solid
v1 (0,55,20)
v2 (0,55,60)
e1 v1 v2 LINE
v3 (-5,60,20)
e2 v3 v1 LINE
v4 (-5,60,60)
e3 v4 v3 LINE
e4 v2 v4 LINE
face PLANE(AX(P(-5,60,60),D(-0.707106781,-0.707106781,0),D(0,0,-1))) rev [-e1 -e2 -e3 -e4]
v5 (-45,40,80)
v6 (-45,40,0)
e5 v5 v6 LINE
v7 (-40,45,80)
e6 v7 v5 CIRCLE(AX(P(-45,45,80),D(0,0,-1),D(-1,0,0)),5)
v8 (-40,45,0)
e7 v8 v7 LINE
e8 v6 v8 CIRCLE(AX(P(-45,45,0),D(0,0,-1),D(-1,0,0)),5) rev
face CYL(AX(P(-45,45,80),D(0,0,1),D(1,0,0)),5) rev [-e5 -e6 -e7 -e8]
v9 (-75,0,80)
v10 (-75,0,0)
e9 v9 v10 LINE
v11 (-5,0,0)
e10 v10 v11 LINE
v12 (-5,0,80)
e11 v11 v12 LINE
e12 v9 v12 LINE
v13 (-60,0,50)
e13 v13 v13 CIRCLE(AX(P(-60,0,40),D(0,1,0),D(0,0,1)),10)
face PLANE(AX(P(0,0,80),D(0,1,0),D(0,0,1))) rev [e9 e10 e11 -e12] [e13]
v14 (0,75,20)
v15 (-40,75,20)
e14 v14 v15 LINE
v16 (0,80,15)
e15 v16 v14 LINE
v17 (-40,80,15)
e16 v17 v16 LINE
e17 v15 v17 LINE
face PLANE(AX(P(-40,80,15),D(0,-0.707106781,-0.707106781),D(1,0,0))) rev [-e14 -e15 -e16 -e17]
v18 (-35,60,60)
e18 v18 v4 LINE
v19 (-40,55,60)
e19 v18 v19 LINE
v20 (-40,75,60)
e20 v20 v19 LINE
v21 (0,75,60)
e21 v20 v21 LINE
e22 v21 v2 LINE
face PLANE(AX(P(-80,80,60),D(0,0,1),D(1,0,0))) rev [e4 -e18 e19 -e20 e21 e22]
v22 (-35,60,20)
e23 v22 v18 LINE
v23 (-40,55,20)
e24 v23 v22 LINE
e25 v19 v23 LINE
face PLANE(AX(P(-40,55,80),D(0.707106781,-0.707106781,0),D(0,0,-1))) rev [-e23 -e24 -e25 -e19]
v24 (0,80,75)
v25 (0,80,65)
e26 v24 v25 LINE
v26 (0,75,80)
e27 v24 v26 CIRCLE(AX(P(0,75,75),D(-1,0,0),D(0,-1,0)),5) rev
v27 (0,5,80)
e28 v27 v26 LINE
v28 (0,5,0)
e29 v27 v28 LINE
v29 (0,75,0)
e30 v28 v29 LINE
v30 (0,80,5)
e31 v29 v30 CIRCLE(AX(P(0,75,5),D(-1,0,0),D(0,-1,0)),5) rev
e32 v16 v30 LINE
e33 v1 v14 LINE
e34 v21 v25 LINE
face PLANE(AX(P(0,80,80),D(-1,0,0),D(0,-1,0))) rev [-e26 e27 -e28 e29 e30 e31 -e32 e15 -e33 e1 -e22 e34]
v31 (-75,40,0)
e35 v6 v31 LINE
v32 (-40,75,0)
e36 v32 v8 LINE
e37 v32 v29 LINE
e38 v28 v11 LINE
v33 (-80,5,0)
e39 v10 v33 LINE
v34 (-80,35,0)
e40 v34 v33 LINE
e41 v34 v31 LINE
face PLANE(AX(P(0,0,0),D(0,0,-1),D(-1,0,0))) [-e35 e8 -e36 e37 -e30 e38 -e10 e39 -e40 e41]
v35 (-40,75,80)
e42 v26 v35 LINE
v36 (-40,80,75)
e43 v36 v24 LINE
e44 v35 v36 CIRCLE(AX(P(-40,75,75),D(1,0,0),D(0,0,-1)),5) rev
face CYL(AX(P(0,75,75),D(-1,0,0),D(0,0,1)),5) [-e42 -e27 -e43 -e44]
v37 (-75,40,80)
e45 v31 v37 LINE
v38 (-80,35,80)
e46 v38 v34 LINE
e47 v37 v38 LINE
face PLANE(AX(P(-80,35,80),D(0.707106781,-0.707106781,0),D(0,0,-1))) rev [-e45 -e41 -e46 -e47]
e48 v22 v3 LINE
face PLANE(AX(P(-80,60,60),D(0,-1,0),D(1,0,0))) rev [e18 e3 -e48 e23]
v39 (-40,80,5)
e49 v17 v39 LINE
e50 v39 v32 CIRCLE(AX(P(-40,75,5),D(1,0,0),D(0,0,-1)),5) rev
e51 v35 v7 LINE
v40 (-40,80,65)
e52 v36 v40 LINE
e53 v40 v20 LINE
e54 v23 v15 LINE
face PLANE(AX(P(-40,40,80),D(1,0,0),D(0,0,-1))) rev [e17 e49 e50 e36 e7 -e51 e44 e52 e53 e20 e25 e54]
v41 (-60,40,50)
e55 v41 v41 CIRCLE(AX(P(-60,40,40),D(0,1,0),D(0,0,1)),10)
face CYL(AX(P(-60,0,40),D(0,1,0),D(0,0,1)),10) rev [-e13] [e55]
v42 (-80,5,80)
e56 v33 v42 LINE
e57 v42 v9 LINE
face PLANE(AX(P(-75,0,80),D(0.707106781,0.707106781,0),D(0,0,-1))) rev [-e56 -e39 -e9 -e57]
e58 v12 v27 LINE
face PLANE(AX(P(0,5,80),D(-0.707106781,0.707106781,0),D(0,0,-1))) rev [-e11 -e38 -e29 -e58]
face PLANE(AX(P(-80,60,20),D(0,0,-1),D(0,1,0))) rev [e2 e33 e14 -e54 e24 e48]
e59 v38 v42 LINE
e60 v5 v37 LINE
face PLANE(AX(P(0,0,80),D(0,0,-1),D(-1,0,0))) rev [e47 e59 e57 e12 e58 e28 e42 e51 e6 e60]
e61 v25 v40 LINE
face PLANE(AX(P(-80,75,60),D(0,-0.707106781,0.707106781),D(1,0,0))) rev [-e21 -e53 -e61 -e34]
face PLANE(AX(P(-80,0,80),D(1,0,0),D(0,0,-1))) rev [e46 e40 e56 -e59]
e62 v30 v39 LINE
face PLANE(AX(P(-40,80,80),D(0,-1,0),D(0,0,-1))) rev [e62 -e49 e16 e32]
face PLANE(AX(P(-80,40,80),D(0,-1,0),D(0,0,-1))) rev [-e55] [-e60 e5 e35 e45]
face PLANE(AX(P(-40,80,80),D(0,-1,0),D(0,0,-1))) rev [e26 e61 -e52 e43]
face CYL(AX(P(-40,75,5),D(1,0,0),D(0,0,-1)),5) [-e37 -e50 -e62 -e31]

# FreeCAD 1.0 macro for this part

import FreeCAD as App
import Part
import Sketcher
from FreeCAD import Vector


def edges_at(feature, points):
    """Names of the edges that pass closest to the given points."""
    edges = feature.Shape.Edges
    near = lambda p: min(range(len(edges)), key=lambda i: edges[i].distToShape(Part.Vertex(*p))[0])
    return sorted({f"Edge{near(p) + 1}" for p in points})


def add_polygon(sketch, points):
    """Adds a closed chain of lines whose ends are joined by coincident constraints."""
    first, n = sketch.GeometryCount, len(points)
    for a, b in zip(points, points[1:] + points[:1]):
        sketch.addGeometry(Part.LineSegment(App.Vector(*a, 0), App.Vector(*b, 0)), False)
    for i in range(n):
        sketch.addConstraint(Sketcher.Constraint("Coincident", first + i, 2, first + (i + 1) % n, 1))

doc = App.newDocument("Part")
body = doc.addObject("PartDesign::Body", "Body")

# Sketch on XY plane
sketch1 = doc.addObject("Sketcher::SketchObject", "Sketch")
body.addObject(sketch1)
sketch1.AttachmentSupport = (doc.XY_Plane, [""])
sketch1.MapMode = "FlatFace"
add_polygon(sketch1, [(-80, 0), (0, 0), (0, 80), (-40, 80), (-40, 40), (-80, 40)])  # lines 0-5
sketch1.addConstraint([
    Sketcher.Constraint("Horizontal", 0),
    Sketcher.Constraint("Vertical", 1),
    Sketcher.Constraint("Horizontal", 2),
    Sketcher.Constraint("Vertical", 3),
    Sketcher.Constraint("Horizontal", 4),
    Sketcher.Constraint("Vertical", 5),
    Sketcher.Constraint("Coincident", 0, 2, -1, 1),
    Sketcher.Constraint("Equal", 2, 4),
    Sketcher.Constraint("Equal", 0, 1),
    Sketcher.Constraint("Equal", 4, 3),
    Sketcher.Constraint("DistanceX", 0, 1, 0, 2, 80.0),
])
pad1 = doc.addObject("PartDesign::Pad", "Pad")
body.addObject(pad1)
pad1.Profile = sketch1
pad1.Length = 80

# Sketch on YZ plane
sketch2 = doc.addObject("Sketcher::SketchObject", "Sketch001")
body.addObject(sketch2)
sketch2.AttachmentSupport = (doc.YZ_Plane, [""])
sketch2.MapMode = "FlatFace"
add_polygon(sketch2, [(80, 60), (60, 60), (60, 20), (80, 20)])  # lines 0-3
sketch2.addConstraint([
    Sketcher.Constraint("Horizontal", 0),
    Sketcher.Constraint("Vertical", 1),
    Sketcher.Constraint("Horizontal", 2),
    Sketcher.Constraint("Vertical", 3),
    Sketcher.Constraint("DistanceX", 0, 2, 0, 1, 20.0),
    Sketcher.Constraint("DistanceY", 1, 2, 1, 1, 40.0),
    Sketcher.Constraint("DistanceX", -1, 1, 0, 2, 60.0),
    Sketcher.Constraint("DistanceY", -1, 1, 0, 2, 60.0),
])
pocket1 = doc.addObject("PartDesign::Pocket", "Pocket")
body.addObject(pocket1)
pocket1.Profile = sketch2
pocket1.Type = "ThroughAll"
doc.recompute()

fillet = doc.addObject("PartDesign::Fillet", "Fillet")
body.addObject(fillet)
fillet.Base = (pocket1, edges_at(pocket1, [(-20, 80, 80), (-20, 80, 0)]))
fillet.Radius = 5
doc.recompute()

chamfer = doc.addObject("PartDesign::Chamfer", "Chamfer")
body.addObject(chamfer)
chamfer.Base = (fillet, edges_at(fillet, [(-20, 80, 60), (-20, 80, 20)]))
chamfer.Size = 5

# Sketch on XZ plane
sketch3 = doc.addObject("Sketcher::SketchObject", "Sketch002")
body.addObject(sketch3)
sketch3.AttachmentSupport = (doc.XZ_Plane, [""])
sketch3.MapMode = "FlatFace"
sketch3.AttachmentOffset = App.Placement(Vector(0, 0, -40), App.Rotation())
sketch3.addGeometry(Part.Circle(Vector(-60, 40, 0), Vector(0, 0, 1), 10), False)
sketch3.addConstraint([
    Sketcher.Constraint("Diameter", 0, 20.0),
    Sketcher.Constraint("DistanceX", 0, 3, -1, 1, 60.0),
    Sketcher.Constraint("DistanceY", -1, 1, 0, 3, 40.0),
])
pocket2 = doc.addObject("PartDesign::Pocket", "Pocket001")
body.addObject(pocket2)
pocket2.Profile = sketch3
pocket2.Type = "ThroughAll"
pocket2.Reversed = True
doc.recompute()

chamfer2 = doc.addObject("PartDesign::Chamfer", "Chamfer001")
body.addObject(chamfer2)
chamfer2.Base = (pocket2, edges_at(pocket2, [(-80, 40, 40)]))
chamfer2.Size = 5
doc.recompute()

fillet2 = doc.addObject("PartDesign::Fillet", "Fillet001")
body.addObject(fillet2)
fillet2.Base = (chamfer2, edges_at(chamfer2, [(-40, 40, 40)]))
fillet2.Radius = 5
doc.recompute()

chamfer3 = doc.addObject("PartDesign::Chamfer", "Chamfer002")
body.addObject(chamfer3)
chamfer3.Base = (fillet2, edges_at(fillet2, [(-80, 0, 40)]))
chamfer3.Size = 5
doc.recompute()

chamfer4 = doc.addObject("PartDesign::Chamfer", "Chamfer003")
body.addObject(chamfer4)
chamfer4.Base = (chamfer3, edges_at(chamfer3, [(0, 0, 40)]))
chamfer4.Size = 5
doc.recompute()

chamfer5 = doc.addObject("PartDesign::Chamfer", "Chamfer004")
body.addObject(chamfer5)
chamfer5.Base = (chamfer4, edges_at(chamfer4, [(0, 60, 40)]))
chamfer5.Size = 5
doc.recompute()

chamfer6 = doc.addObject("PartDesign::Chamfer", "Chamfer005")
body.addObject(chamfer6)
chamfer6.Base = (chamfer5, edges_at(chamfer5, [(-40, 60, 40)]))
chamfer6.Size = 5

doc.recompute()
